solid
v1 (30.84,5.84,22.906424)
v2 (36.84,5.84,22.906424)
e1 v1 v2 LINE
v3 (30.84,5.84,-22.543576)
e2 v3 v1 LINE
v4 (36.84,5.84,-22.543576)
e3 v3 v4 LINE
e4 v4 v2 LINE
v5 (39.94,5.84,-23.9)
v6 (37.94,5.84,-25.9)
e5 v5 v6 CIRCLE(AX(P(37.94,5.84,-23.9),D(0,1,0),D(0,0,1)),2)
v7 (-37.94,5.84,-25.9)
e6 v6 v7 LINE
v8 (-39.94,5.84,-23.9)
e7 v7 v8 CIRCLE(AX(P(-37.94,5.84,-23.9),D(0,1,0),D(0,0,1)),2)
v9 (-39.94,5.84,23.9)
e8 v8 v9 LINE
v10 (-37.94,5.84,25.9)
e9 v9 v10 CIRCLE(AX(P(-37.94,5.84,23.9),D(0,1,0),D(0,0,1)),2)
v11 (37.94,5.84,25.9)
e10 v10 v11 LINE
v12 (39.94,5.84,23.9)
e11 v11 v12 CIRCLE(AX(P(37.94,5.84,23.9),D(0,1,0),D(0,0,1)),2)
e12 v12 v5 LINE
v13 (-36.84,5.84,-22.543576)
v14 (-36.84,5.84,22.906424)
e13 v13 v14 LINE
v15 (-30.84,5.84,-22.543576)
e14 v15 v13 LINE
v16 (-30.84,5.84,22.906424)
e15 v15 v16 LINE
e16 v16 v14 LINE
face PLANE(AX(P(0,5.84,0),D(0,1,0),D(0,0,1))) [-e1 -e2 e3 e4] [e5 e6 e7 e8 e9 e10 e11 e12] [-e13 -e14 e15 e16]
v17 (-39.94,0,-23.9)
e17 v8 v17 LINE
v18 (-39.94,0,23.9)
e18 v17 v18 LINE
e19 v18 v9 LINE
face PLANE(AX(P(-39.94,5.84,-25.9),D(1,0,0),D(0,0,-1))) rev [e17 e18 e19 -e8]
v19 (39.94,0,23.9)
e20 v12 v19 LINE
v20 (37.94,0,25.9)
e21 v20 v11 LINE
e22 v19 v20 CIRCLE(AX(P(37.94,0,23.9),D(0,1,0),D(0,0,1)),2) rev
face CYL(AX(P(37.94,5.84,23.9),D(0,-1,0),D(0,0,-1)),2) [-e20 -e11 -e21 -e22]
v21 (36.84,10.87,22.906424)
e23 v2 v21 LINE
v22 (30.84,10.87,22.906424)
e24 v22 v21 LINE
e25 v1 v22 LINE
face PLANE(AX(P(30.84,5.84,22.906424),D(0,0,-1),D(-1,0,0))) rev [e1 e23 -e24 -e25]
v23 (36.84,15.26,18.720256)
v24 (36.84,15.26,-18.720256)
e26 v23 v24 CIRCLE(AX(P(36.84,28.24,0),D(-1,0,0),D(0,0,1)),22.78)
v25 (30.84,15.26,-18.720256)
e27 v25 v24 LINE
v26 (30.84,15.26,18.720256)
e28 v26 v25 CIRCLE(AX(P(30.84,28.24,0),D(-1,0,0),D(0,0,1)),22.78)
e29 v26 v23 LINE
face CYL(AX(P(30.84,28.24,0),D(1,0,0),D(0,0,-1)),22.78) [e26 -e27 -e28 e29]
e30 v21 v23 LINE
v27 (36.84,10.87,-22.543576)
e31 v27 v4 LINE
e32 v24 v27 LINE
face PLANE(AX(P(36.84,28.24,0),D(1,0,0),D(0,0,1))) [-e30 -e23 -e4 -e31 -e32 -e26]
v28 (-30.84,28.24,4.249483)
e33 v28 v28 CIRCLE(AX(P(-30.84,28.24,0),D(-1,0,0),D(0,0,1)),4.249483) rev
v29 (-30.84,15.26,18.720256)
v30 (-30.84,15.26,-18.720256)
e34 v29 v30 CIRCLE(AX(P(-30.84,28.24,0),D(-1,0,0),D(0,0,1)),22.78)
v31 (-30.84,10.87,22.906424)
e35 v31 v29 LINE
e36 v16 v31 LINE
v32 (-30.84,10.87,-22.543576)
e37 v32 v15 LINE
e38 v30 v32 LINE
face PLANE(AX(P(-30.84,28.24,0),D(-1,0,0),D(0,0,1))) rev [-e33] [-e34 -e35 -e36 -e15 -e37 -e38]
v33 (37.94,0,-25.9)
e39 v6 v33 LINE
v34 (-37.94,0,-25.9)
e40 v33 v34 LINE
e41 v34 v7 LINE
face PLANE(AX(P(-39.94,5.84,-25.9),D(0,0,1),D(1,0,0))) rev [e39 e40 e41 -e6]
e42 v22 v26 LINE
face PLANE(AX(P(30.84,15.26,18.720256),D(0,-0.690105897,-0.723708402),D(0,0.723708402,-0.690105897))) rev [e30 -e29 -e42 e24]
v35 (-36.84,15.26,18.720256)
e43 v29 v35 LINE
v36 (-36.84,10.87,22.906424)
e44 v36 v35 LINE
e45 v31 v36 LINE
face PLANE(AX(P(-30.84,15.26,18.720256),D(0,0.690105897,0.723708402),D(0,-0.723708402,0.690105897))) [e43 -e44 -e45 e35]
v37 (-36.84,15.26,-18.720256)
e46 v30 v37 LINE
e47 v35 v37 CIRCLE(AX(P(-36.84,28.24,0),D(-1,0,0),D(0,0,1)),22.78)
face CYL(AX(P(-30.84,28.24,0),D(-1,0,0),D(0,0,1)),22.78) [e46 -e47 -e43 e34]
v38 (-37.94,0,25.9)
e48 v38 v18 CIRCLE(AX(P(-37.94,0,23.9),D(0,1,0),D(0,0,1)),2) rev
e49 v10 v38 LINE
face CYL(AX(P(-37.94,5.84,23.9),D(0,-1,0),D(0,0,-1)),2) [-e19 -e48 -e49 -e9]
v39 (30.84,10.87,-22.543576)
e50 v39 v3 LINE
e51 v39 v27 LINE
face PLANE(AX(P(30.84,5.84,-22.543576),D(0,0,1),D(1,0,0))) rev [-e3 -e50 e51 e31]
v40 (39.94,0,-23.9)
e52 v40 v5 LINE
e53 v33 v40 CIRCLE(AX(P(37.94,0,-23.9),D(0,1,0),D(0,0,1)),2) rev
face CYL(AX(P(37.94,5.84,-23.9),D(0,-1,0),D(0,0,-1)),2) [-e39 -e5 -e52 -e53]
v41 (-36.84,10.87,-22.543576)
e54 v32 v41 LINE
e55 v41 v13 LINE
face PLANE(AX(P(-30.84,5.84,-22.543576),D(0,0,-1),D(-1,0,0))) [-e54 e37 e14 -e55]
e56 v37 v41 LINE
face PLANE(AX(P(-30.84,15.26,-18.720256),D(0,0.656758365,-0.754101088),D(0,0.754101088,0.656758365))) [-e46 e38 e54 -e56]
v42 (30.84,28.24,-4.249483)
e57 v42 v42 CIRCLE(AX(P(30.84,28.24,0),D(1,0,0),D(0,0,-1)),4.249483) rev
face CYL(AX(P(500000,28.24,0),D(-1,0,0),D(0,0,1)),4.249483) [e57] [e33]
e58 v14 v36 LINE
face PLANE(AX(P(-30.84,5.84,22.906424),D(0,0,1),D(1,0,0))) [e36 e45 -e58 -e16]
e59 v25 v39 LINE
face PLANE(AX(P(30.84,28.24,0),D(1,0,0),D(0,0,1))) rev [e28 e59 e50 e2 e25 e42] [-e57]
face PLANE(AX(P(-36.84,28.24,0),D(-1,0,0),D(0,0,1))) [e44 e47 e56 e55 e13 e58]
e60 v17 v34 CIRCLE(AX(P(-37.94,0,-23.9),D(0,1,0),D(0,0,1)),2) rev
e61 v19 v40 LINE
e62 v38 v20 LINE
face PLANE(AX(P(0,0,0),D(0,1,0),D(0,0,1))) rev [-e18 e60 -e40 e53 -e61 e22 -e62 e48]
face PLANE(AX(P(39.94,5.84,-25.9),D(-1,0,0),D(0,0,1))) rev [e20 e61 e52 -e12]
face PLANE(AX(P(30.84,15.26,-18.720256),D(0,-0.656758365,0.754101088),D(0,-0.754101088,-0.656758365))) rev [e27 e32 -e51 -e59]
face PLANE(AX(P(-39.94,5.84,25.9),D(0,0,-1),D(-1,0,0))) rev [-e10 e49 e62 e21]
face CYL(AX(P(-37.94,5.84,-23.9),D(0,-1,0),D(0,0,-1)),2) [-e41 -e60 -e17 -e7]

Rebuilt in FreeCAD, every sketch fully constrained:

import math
import FreeCAD as App
import Part
import Sketcher

V = App.Vector
Q = App.Units.Quantity


def edges_at(feature, points):
    """Names of the edges that pass closest to the given points."""
    edges = feature.Shape.Edges
    near = lambda p: min(range(len(edges)), key=lambda i: edges[i].distToShape(Part.Vertex(*p))[0])
    return sorted({f"Edge{near(p) + 1}" for p in points})

doc = App.newDocument("Part")
body = doc.addObject("PartDesign::Body", "Body")

# Sketch on XZ plane
sketch1 = doc.addObject("Sketcher::SketchObject", "Sketch")
body.addObject(sketch1)
sketch1.AttachmentSupport = (doc.XZ_Plane, [""])
sketch1.MapMode = "FlatFace"
sketch1.addGeometry(Part.LineSegment(V(-39.94, -25.9, 0), V(-39.94, 25.9, 0)), False)
sketch1.addGeometry(Part.LineSegment(V(-39.94, 25.9, 0), V(39.94, 25.9, 0)), False)
sketch1.addGeometry(Part.LineSegment(V(39.94, 25.9, 0), V(39.94, -25.9, 0)), False)
sketch1.addGeometry(Part.LineSegment(V(39.94, -25.9, 0), V(-39.94, -25.9, 0)), False)
sketch1.addConstraint(Sketcher.Constraint("Coincident", 0, 2, 1, 1))
sketch1.addConstraint(Sketcher.Constraint("Coincident", 1, 2, 2, 1))
sketch1.addConstraint(Sketcher.Constraint("Coincident", 2, 2, 3, 1))
sketch1.addConstraint(Sketcher.Constraint("Coincident", 3, 2, 0, 1))
sketch1.addConstraint(Sketcher.Constraint("Vertical", 0))
sketch1.addConstraint(Sketcher.Constraint("Horizontal", 1))
sketch1.addConstraint(Sketcher.Constraint("Vertical", 2))
sketch1.addConstraint(Sketcher.Constraint("Horizontal", 3))
sketch1.addConstraint(Sketcher.Constraint("Symmetric", 0, 2, 2, 2, -1, 1))
sketch1.addConstraint(Sketcher.Constraint("DistanceY", 0, 1, 0, 2, Q("51.8 mm")))
sketch1.addConstraint(Sketcher.Constraint("DistanceX", 1, 1, 1, 2, Q("79.88 mm")))
pad1 = doc.addObject("PartDesign::Pad", "Pad")
body.addObject(pad1)
pad1.Profile = sketch1
pad1.Length = 5.84
pad1.Reversed = True
doc.recompute()

fillet = doc.addObject("PartDesign::Fillet", "Fillet")
body.addObject(fillet)
fillet.Base = (pad1, edges_at(pad1, [(-39.94, 2.92, -25.9)]))
fillet.Radius = 2
doc.recompute()

fillet2 = doc.addObject("PartDesign::Fillet", "Fillet001")
body.addObject(fillet2)
fillet2.Base = (fillet, edges_at(fillet, [(-39.94, 2.92, 25.9)]))
fillet2.Radius = 2
doc.recompute()

fillet3 = doc.addObject("PartDesign::Fillet", "Fillet002")
body.addObject(fillet3)
fillet3.Base = (fillet2, edges_at(fillet2, [(39.94, 2.92, -25.9)]))
fillet3.Radius = 2

# Sketch on YZ plane
sketch2 = doc.addObject("Sketcher::SketchObject", "Sketch001")
body.addObject(sketch2)
sketch2.AttachmentSupport = (doc.YZ_Plane, [""])
sketch2.MapMode = "FlatFace"
sketch2.AttachmentOffset = App.Placement(V(0, 0, -36.84), App.Rotation())
sketch2.addGeometry(Part.LineSegment(V(5.84, -22.543576, 0), V(5.84, 22.906424, 0)), False)
sketch2.addGeometry(Part.LineSegment(V(5.84, 22.906424, 0), V(10.87, 22.906424, 0)), False)
sketch2.addGeometry(Part.LineSegment(V(10.87, 22.906424, 0), V(15.26, 18.720256, 0)), False)
sketch2.addGeometry(Part.ArcOfCircle(Part.Circle(V(28.24, 0, 0), V(0, 0, 1), 22.78), math.radians(-124.736146), math.radians(124.736146)), False)
sketch2.addGeometry(Part.LineSegment(V(15.26, -18.720256, 0), V(10.87, -22.543576, 0)), False)
sketch2.addGeometry(Part.LineSegment(V(10.87, -22.543576, 0), V(5.84, -22.543576, 0)), False)
sketch2.addConstraint(Sketcher.Constraint("Coincident", 0, 2, 1, 1))
sketch2.addConstraint(Sketcher.Constraint("Coincident", 1, 2, 2, 1))
sketch2.addConstraint(Sketcher.Constraint("Coincident", 2, 2, 3, 2))
sketch2.addConstraint(Sketcher.Constraint("Coincident", 3, 1, 4, 1))
sketch2.addConstraint(Sketcher.Constraint("Coincident", 4, 2, 5, 1))
sketch2.addConstraint(Sketcher.Constraint("Coincident", 5, 2, 0, 1))
sketch2.addConstraint(Sketcher.Constraint("Vertical", 0))
sketch2.addConstraint(Sketcher.Constraint("Horizontal", 1))
sketch2.addConstraint(Sketcher.Constraint("Horizontal", 5))
sketch2.addConstraint(Sketcher.Constraint("Symmetric", 2, 2, 3, 1, -1))
sketch2.addConstraint(Sketcher.Constraint("Vertical", 1, 2, 4, 2))
sketch2.addConstraint(Sketcher.Constraint("Radius", 3, Q("22.78 mm")))
sketch2.addConstraint(Sketcher.Constraint("DistanceX", 1, 1, 1, 2, Q("5.03 mm")))
sketch2.addConstraint(Sketcher.Constraint("DistanceY", 0, 1, 0, 2, Q("45.45 mm")))
sketch2.addConstraint(Sketcher.Constraint("DistanceX", 0, 2, 3, 3, Q("22.4 mm")))
sketch2.addConstraint(Sketcher.Constraint("DistanceX", -1, 1, 3, 3, Q("28.24 mm")))
sketch2.addConstraint(Sketcher.Constraint("DistanceX", -1, 1, 2, 2, Q("15.26 mm")))
sketch2.addConstraint(Sketcher.Constraint("Distance", 4, Q("5.821501 mm")))
pad2 = doc.addObject("PartDesign::Pad", "Pad001")
body.addObject(pad2)
pad2.Profile = sketch2
pad2.Length = 6
doc.recompute()

fillet4 = doc.addObject("PartDesign::Fillet", "Fillet003")
body.addObject(fillet4)
fillet4.Base = (pad2, edges_at(pad2, [(39.94, 2.92, 25.9)]))
fillet4.Radius = 2
doc.recompute()

mirrored = doc.addObject("PartDesign::Mirrored", "Mirrored")
body.addObject(mirrored)
mirrored.Originals = [pad2]
mirrored.MirrorPlane = (doc.YZ_Plane, [""])
body.Tip = mirrored

# Sketch on YZ plane
sketch3 = doc.addObject("Sketcher::SketchObject", "Sketch002")
body.addObject(sketch3)
sketch3.AttachmentSupport = (doc.YZ_Plane, [""])
sketch3.MapMode = "FlatFace"
sketch3.AttachmentOffset = App.Placement(V(0, 0, -30.84), App.Rotation())
sketch3.addGeometry(Part.Circle(V(28.24, 0, 0), V(0, 0, 1), 4.249483), False)
sketch3.addConstraint(Sketcher.Constraint("PointOnObject", 0, 3, -1))
sketch3.addConstraint(Sketcher.Constraint("DistanceX", -1, 1, 0, 3, Q("28.24 mm")))
sketch3.addConstraint(Sketcher.Constraint("Diameter", 0, Q("8.498966 mm")))
pad3 = doc.addObject("PartDesign::Pad", "Pad002")
body.addObject(pad3)
pad3.Profile = sketch3
pad3.Type = "UpToFirst"

doc.recompute()
